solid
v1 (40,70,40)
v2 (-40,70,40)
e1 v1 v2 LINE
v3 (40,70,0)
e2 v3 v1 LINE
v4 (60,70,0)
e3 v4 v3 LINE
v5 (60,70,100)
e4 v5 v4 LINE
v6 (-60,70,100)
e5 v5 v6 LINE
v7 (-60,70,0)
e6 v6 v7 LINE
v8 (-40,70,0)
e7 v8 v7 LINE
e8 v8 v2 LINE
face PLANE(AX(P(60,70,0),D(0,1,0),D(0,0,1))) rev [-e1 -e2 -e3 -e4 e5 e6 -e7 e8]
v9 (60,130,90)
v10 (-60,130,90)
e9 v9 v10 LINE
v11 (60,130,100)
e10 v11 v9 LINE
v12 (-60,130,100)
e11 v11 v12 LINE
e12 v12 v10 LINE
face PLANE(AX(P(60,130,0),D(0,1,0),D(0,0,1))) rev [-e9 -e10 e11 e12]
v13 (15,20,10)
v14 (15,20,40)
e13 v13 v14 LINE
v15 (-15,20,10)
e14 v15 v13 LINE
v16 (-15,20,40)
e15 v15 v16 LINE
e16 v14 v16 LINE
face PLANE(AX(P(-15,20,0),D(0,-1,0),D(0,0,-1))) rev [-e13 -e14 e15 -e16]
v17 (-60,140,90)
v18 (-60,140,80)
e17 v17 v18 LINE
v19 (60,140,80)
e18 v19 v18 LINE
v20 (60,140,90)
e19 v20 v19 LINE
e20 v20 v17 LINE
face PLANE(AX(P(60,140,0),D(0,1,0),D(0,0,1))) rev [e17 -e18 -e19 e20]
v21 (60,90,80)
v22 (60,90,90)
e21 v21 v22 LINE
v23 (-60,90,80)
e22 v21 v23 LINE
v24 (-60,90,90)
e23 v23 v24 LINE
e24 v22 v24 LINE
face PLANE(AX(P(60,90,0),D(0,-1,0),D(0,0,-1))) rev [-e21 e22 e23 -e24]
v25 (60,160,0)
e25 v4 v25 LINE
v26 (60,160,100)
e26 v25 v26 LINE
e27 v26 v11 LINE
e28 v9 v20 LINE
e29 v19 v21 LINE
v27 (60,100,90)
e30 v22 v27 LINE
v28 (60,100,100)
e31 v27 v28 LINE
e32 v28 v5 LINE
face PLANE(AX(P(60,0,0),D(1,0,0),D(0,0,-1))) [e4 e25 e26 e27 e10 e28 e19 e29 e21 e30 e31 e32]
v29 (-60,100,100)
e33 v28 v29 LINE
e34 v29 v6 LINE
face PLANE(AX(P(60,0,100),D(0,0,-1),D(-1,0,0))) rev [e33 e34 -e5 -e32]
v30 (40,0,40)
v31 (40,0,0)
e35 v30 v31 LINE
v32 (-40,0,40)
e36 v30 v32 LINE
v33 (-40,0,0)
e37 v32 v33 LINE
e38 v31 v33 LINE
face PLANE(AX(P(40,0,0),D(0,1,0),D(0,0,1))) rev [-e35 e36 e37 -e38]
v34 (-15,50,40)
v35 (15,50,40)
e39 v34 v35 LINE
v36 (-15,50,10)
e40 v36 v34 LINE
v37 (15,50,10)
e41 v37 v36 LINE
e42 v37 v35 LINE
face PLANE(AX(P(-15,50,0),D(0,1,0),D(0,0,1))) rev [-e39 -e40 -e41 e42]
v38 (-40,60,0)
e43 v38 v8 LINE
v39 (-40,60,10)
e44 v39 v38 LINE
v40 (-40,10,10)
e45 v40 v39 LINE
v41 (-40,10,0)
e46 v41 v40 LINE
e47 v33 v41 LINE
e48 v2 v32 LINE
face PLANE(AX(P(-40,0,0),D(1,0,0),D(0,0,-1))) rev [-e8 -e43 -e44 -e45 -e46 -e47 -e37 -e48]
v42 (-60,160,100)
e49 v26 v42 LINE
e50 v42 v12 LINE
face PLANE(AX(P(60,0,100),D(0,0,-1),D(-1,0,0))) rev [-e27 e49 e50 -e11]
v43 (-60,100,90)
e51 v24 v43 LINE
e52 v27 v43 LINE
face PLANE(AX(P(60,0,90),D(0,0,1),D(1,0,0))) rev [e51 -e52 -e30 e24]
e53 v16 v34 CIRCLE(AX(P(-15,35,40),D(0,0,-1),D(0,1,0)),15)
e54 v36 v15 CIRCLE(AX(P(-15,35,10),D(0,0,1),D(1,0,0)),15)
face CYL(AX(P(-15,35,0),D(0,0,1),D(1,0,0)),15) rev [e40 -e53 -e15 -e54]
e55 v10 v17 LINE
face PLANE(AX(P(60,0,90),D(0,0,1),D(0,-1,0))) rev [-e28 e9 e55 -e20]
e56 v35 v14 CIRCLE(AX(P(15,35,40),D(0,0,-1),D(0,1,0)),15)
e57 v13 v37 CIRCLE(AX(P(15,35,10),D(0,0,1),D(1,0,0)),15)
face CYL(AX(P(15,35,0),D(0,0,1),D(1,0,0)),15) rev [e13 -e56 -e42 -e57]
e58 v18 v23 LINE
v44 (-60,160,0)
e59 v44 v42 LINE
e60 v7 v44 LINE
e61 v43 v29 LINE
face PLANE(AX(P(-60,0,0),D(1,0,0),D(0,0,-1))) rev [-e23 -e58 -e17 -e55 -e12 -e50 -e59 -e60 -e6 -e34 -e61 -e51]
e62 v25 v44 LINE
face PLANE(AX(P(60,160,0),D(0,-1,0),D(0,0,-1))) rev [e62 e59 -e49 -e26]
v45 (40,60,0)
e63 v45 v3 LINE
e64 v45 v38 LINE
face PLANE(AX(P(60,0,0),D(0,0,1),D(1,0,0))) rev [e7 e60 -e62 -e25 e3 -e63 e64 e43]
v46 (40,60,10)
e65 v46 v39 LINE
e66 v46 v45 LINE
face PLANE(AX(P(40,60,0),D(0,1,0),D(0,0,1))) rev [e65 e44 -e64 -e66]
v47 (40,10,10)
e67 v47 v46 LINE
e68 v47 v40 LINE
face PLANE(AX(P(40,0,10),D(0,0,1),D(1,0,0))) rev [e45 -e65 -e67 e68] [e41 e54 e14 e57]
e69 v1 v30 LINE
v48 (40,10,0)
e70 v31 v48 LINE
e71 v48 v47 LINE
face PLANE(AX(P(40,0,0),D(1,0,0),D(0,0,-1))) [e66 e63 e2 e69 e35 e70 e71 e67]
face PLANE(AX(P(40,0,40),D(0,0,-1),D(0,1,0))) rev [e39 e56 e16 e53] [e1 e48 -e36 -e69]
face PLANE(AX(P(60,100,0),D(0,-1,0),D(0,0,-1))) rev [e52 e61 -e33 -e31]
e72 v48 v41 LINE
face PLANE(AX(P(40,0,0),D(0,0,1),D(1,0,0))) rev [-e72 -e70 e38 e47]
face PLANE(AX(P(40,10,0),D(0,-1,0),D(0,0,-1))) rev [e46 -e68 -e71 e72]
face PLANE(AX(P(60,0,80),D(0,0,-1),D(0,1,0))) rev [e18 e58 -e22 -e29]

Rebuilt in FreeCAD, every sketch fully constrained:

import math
import FreeCAD as App
import Part
import Sketcher
from FreeCAD import Vector
Q = App.Units.Quantity


def add_polygon(sketch, points):
    """Adds a closed chain of lines whose ends are joined by coincident constraints."""
    first, n = sketch.GeometryCount, len(points)
    for a, b in zip(points, points[1:] + points[:1]):
        sketch.addGeometry(Part.LineSegment(App.Vector(*a, 0), App.Vector(*b, 0)), False)
    for i in range(n):
        sketch.addConstraint(Sketcher.Constraint("Coincident", first + i, 2, first + (i + 1) % n, 1))

doc = App.newDocument("Part")
body = doc.addObject("PartDesign::Body", "Body")

sketch1 = body.newObject("Sketcher::SketchObject", "Sketch")
sketch1.AttachmentSupport = (doc.getObject("YZ_Plane"), [""])
sketch1.MapMode = "FlatFace"
add_polygon(sketch1, [(70, 0), (160, 0), (160, 100), (130, 100), (130, 90), (140, 90), (140, 80), (90, 80), (90, 90), (100, 90), (100, 100), (70, 100)])
sketch1.addConstraint(Sketcher.Constraint("Horizontal", 0))
sketch1.addConstraint(Sketcher.Constraint("Vertical", 1))
sketch1.addConstraint(Sketcher.Constraint("Horizontal", 2))
sketch1.addConstraint(Sketcher.Constraint("Vertical", 3))
sketch1.addConstraint(Sketcher.Constraint("Horizontal", 4))
sketch1.addConstraint(Sketcher.Constraint("Vertical", 5))
sketch1.addConstraint(Sketcher.Constraint("Horizontal", 6))
sketch1.addConstraint(Sketcher.Constraint("Vertical", 7))
sketch1.addConstraint(Sketcher.Constraint("Horizontal", 8))
sketch1.addConstraint(Sketcher.Constraint("Vertical", 9))
sketch1.addConstraint(Sketcher.Constraint("Horizontal", 10))
sketch1.addConstraint(Sketcher.Constraint("Vertical", 11))
sketch1.addConstraint(Sketcher.Constraint("PointOnObject", 0, 2, -1))
sketch1.addConstraint(Sketcher.Constraint("Horizontal", 4, 2, 7, 2))
sketch1.addConstraint(Sketcher.Constraint("Horizontal", 2, 2, 9, 2))
sketch1.addConstraint(Sketcher.Constraint("Equal", 4, 8))
sketch1.addConstraint(Sketcher.Constraint("Equal", 2, 10))
sketch1.addConstraint(Sketcher.Constraint("Equal", 8, 3))
sketch1.addConstraint(Sketcher.Constraint("Equal", 3, 5))
sketch1.addConstraint(Sketcher.Constraint("DistanceX", 0, 1, 0, 2, Q("90 mm")))
sketch1.addConstraint(Sketcher.Constraint("DistanceX", 2, 2, 2, 1, Q("30 mm")))
sketch1.addConstraint(Sketcher.Constraint("DistanceX", 4, 1, 4, 2, Q("10 mm")))
sketch1.addConstraint(Sketcher.Constraint("DistanceY", 1, 1, 1, 2, Q("100 mm")))
sketch1.addConstraint(Sketcher.Constraint("DistanceX", -1, 1, 0, 2, Q("160 mm")))
pad1 = body.newObject("PartDesign::Pad", "Pad")
pad1.Profile = sketch1
pad1.Length = 120
pad1.Midplane = True

sketch2 = body.newObject("Sketcher::SketchObject", "Sketch001")
sketch2.AttachmentSupport = (doc.getObject("YZ_Plane"), [""])
sketch2.MapMode = "FlatFace"
add_polygon(sketch2, [(70, 40), (0, 40), (0, 0), (10, 0), (10, 10), (60, 10), (60, 0), (70, 0)])
sketch2.addConstraint(Sketcher.Constraint("Horizontal", 0))
sketch2.addConstraint(Sketcher.Constraint("Vertical", 1))
sketch2.addConstraint(Sketcher.Constraint("Horizontal", 2))
sketch2.addConstraint(Sketcher.Constraint("Vertical", 3))
sketch2.addConstraint(Sketcher.Constraint("Horizontal", 4))
sketch2.addConstraint(Sketcher.Constraint("Vertical", 5))
sketch2.addConstraint(Sketcher.Constraint("Horizontal", 6))
sketch2.addConstraint(Sketcher.Constraint("Vertical", 7))
sketch2.addConstraint(Sketcher.Constraint("Coincident", 1, 2, -1, 1))
sketch2.addConstraint(Sketcher.Constraint("PointOnObject", 5, 2, -1))
sketch2.addConstraint(Sketcher.Constraint("Equal", 2, 6))
sketch2.addConstraint(Sketcher.Constraint("Equal", 6, 3))
sketch2.addConstraint(Sketcher.Constraint("DistanceX", 0, 2, 0, 1, Q("70 mm")))
sketch2.addConstraint(Sketcher.Constraint("DistanceX", 2, 1, 2, 2, Q("10 mm")))
sketch2.addConstraint(Sketcher.Constraint("DistanceY", 1, 2, 1, 1, Q("40 mm")))
pad2 = body.newObject("PartDesign::Pad", "Pad001")
pad2.Profile = sketch2
pad2.Length = 80
pad2.Midplane = True

sketch3 = body.newObject("Sketcher::SketchObject", "Sketch002")
sketch3.AttachmentSupport = (doc.getObject("XY_Plane"), [""])
sketch3.MapMode = "FlatFace"
sketch3.AttachmentOffset = App.Placement(Vector(0, 0, 40), App.Rotation())
sketch3.addGeometry(Part.LineSegment(Vector(15, 50, 0), Vector(-15, 50, 0)), False)
sketch3.addGeometry(Part.ArcOfCircle(Part.Circle(Vector(-15, 35, 0), Vector(0, 0, 1), 15), math.radians(90), math.radians(270)), False)
sketch3.addGeometry(Part.LineSegment(Vector(-15, 20, 0), Vector(15, 20, 0)), False)
sketch3.addGeometry(Part.ArcOfCircle(Part.Circle(Vector(15, 35, 0), Vector(0, 0, 1), 15), math.radians(-90), math.radians(90)), False)
sketch3.addConstraint(Sketcher.Constraint("Tangent", 0, 2, 1, 1))
sketch3.addConstraint(Sketcher.Constraint("Tangent", 1, 2, 2, 1))
sketch3.addConstraint(Sketcher.Constraint("Tangent", 2, 2, 3, 1))
sketch3.addConstraint(Sketcher.Constraint("Tangent", 3, 2, 0, 1))
sketch3.addConstraint(Sketcher.Constraint("Horizontal", 0))
sketch3.addConstraint(Sketcher.Constraint("Horizontal", 2))
sketch3.addConstraint(Sketcher.Constraint("Radius", 1, Q("15 mm")))
sketch3.addConstraint(Sketcher.Constraint("DistanceX", 0, 2, 0, 1, Q("30 mm")))
sketch3.addConstraint(Sketcher.Constraint("DistanceX", 1, 3, -1, 1, Q("15 mm")))
sketch3.addConstraint(Sketcher.Constraint("DistanceY", -1, 1, 1, 3, Q("35 mm")))
pocket1 = body.newObject("PartDesign::Pocket", "Pocket")
pocket1.Profile = sketch3
pocket1.Type = "ThroughAll"
pocket1.Midplane = True

doc.recompute()
